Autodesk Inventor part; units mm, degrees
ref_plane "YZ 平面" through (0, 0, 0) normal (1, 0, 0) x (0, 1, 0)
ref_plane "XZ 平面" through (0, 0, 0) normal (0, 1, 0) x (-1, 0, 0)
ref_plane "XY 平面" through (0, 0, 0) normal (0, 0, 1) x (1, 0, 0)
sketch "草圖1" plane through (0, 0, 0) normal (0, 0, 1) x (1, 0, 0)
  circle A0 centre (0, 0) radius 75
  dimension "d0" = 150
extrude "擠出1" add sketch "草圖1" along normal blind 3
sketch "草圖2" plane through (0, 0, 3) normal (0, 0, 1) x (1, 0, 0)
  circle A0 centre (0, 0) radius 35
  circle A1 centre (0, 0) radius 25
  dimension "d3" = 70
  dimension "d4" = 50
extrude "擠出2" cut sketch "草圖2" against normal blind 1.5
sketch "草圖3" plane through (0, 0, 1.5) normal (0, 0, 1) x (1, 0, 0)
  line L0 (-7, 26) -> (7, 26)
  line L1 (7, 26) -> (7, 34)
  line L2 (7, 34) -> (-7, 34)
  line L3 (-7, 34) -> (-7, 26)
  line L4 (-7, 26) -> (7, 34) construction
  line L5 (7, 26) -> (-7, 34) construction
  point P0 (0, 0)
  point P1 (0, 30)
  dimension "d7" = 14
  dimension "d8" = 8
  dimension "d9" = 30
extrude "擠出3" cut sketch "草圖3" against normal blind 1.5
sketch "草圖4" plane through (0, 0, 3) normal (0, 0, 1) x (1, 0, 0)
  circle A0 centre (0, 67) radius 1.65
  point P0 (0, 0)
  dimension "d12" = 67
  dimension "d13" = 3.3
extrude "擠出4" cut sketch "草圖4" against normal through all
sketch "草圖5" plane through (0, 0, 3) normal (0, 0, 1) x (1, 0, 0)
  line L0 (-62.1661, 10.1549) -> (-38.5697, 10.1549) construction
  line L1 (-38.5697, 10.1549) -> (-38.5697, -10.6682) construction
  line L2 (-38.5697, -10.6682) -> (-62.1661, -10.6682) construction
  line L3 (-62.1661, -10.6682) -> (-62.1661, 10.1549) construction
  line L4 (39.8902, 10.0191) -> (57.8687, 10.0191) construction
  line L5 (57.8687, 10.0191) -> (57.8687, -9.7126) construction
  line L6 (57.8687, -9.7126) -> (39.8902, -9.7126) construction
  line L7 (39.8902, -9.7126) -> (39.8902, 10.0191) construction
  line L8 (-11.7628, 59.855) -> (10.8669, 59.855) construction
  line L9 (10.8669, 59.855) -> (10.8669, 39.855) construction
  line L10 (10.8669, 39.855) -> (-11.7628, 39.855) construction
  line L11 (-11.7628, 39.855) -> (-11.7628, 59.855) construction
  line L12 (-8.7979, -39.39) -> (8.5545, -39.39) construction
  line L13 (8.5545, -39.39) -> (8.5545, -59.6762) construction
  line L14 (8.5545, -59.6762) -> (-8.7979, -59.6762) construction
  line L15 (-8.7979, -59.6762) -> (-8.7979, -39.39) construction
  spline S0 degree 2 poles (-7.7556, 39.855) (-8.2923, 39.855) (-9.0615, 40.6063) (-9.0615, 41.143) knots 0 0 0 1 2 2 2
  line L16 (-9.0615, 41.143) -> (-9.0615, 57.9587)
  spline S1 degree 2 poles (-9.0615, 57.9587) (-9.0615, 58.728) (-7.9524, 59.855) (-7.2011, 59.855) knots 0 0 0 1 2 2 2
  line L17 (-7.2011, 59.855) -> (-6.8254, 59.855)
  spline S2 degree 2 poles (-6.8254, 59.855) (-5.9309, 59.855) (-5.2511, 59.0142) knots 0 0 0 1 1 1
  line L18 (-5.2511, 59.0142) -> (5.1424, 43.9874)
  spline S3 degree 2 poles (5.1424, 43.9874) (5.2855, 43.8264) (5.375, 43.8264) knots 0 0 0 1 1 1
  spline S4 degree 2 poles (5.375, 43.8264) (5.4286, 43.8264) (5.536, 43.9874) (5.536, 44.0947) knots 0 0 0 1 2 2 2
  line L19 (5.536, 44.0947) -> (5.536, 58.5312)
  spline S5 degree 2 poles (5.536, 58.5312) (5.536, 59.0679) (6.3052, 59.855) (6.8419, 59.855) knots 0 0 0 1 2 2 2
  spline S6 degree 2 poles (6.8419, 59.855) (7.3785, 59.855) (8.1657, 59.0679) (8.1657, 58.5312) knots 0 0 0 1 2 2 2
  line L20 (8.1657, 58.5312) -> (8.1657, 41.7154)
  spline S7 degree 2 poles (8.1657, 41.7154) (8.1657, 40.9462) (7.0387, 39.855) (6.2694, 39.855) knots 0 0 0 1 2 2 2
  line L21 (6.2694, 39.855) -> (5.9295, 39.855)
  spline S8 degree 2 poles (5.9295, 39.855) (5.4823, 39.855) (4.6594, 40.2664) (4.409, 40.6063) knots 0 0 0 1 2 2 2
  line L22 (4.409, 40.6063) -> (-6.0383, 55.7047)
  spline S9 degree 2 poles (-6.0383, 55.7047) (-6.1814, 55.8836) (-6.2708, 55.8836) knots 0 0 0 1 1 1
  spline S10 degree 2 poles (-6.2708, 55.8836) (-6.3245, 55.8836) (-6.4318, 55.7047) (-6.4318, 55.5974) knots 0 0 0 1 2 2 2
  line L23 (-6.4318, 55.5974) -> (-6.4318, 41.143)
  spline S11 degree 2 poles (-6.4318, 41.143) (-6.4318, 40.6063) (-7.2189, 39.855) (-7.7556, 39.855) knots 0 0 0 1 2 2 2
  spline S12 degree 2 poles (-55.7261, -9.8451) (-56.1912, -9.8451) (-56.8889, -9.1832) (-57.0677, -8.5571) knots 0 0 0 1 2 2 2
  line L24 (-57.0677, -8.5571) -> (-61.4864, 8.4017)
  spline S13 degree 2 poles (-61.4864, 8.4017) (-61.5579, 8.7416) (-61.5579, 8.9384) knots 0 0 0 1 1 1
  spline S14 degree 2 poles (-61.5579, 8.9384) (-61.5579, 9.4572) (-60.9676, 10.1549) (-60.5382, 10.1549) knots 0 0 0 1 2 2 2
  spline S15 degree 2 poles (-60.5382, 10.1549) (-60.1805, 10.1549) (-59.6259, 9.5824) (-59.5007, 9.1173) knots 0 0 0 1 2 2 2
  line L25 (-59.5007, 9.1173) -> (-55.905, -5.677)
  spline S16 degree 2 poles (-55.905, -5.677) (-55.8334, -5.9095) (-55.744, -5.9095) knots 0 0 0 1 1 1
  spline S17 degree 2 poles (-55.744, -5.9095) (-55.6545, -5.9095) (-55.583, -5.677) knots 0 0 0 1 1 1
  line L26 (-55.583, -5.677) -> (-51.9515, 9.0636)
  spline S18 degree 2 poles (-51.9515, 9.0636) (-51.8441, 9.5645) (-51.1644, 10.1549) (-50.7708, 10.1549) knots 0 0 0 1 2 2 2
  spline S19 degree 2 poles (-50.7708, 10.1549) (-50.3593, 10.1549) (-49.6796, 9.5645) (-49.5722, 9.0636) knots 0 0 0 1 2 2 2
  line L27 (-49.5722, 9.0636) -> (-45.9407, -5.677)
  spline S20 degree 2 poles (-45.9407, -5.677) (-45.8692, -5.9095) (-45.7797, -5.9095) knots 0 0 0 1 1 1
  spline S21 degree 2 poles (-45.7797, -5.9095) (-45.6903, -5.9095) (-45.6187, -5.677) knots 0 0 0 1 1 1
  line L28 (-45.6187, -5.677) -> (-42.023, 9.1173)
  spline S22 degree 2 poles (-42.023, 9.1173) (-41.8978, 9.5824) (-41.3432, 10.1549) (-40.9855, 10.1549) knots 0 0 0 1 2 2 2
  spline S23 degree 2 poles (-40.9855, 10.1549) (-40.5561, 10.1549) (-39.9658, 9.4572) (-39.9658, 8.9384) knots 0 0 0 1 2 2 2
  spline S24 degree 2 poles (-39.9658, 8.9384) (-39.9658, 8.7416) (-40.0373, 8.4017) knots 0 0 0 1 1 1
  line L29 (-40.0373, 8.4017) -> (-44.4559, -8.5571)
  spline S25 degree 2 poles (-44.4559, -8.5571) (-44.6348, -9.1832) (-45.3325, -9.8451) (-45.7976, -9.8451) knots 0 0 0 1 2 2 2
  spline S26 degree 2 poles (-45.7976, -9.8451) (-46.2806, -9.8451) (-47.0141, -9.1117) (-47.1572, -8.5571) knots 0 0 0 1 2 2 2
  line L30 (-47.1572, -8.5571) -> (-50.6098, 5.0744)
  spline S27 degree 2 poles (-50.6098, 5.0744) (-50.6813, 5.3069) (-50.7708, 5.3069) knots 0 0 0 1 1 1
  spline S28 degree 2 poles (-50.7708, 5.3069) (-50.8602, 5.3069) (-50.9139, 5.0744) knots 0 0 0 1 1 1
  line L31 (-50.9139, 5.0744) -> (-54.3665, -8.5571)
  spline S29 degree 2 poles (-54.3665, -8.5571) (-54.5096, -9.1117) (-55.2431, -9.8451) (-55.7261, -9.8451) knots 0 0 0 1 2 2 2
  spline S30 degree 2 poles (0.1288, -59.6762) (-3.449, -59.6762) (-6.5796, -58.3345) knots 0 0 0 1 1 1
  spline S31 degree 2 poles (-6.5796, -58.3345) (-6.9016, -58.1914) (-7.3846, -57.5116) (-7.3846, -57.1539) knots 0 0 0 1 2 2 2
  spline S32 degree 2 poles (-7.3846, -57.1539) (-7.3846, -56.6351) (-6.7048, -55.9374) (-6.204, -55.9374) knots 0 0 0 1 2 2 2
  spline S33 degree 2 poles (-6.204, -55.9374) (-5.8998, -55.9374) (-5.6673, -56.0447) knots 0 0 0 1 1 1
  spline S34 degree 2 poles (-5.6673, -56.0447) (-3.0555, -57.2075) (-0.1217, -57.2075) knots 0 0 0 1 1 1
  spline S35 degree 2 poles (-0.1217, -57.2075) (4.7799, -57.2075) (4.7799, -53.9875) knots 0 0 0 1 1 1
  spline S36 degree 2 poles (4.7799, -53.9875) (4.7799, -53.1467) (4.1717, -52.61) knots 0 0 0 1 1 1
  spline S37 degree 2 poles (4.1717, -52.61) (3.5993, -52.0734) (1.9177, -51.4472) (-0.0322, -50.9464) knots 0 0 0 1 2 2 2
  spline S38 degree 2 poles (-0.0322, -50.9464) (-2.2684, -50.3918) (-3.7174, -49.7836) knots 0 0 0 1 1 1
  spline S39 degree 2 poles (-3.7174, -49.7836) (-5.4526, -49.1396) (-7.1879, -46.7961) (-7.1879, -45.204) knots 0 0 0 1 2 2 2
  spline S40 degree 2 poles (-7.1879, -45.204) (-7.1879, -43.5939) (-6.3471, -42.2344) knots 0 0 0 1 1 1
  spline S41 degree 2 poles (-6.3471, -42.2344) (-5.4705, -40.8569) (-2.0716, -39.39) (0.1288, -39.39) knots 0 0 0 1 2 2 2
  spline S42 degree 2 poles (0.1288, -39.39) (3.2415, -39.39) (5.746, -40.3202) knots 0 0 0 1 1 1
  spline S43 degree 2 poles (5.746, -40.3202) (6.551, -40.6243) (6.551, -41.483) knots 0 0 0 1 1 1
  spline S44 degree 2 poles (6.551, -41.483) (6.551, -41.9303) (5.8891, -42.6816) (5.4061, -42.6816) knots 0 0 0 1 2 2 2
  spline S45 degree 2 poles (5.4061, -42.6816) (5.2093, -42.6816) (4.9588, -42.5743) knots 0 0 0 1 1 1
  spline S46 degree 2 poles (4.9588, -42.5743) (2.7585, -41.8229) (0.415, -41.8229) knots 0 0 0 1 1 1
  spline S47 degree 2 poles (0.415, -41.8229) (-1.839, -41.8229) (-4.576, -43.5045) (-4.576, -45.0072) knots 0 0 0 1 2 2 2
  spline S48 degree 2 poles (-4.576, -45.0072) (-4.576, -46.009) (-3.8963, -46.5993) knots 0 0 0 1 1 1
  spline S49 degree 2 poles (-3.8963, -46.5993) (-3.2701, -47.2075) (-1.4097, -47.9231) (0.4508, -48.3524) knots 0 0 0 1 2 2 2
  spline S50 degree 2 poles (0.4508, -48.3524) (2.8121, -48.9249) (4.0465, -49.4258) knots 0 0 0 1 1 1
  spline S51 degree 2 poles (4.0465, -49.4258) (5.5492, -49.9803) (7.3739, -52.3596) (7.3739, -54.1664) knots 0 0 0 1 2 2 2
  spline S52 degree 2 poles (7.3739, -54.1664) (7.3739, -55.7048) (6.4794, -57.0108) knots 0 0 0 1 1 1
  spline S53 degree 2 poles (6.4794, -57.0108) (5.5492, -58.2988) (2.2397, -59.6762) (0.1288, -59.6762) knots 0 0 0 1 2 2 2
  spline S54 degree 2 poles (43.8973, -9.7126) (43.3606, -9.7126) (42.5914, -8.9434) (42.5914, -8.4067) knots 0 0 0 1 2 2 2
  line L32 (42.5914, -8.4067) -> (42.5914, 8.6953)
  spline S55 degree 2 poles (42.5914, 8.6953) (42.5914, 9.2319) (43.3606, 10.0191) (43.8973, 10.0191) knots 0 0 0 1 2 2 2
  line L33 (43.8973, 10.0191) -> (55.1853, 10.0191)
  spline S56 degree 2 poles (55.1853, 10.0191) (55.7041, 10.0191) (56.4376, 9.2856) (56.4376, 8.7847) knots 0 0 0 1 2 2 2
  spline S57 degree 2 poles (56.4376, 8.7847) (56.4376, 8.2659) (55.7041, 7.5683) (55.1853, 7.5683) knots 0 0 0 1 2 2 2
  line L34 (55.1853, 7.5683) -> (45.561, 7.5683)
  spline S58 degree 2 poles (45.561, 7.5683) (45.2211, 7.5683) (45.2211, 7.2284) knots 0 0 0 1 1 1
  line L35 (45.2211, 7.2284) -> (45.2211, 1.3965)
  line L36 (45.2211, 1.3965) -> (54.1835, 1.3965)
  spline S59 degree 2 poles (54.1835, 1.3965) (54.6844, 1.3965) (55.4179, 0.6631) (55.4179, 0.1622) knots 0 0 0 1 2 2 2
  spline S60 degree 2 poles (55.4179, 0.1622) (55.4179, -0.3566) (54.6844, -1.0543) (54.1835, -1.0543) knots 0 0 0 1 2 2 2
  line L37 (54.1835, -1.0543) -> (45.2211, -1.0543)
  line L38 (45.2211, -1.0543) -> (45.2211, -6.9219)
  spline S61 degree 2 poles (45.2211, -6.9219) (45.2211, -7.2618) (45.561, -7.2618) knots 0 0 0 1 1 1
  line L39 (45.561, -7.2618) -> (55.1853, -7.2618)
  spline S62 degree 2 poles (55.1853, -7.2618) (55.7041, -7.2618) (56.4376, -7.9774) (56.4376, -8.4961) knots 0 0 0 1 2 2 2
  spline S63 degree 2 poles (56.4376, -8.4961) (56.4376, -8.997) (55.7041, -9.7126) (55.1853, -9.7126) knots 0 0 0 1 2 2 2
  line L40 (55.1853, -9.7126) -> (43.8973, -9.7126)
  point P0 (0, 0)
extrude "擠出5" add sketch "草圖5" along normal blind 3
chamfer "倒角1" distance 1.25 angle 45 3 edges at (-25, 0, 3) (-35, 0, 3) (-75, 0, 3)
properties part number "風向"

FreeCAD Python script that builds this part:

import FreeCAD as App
import Part
import Sketcher
from FreeCAD import Vector
Q = App.Units.Quantity


def edges_at(feature, points):
    """Names of the edges that pass closest to the given points."""
    edges = feature.Shape.Edges
    near = lambda p: min(range(len(edges)), key=lambda i: edges[i].distToShape(Part.Vertex(*p))[0])
    return sorted({f"Edge{near(p) + 1}" for p in points})

doc = App.newDocument("Part")
body = doc.addObject("PartDesign::Body", "Body")

# Sketch on XY plane
sketch1 = doc.addObject("Sketcher::SketchObject", "Sketch")
body.addObject(sketch1)
sketch1.AttachmentSupport = (doc.XY_Plane, [""])
sketch1.MapMode = "FlatFace"
sketch1.addGeometry(Part.Circle(Vector(0, 0, 0), Vector(0, 0, 1), 75), False)
sketch1.addConstraint([
    Sketcher.Constraint("Coincident", 0, 3, -1, 1),
    Sketcher.Constraint("Diameter", 0, Q("150 mm")),
])
pad1 = doc.addObject("PartDesign::Pad", "Pad")
body.addObject(pad1)
pad1.Profile = sketch1
pad1.Length = 3

# Sketch on XY plane
sketch2 = doc.addObject("Sketcher::SketchObject", "Sketch001")
body.addObject(sketch2)
sketch2.AttachmentSupport = (doc.XY_Plane, [""])
sketch2.MapMode = "FlatFace"
sketch2.AttachmentOffset = App.Placement(Vector(0, 0, 3), App.Rotation())
sketch2.addGeometry([
    Part.Circle(Vector(0, 0, 0), Vector(0, 0, 1), 35),
    Part.Circle(Vector(0, 0, 0), Vector(0, 0, 1), 25),
], False)
sketch2.addConstraint([
    Sketcher.Constraint("Coincident", 0, 3, -1, 1),
    Sketcher.Constraint("Coincident", 1, 3, -1, 1),
    Sketcher.Constraint("Diameter", 0, Q("70 mm")),
    Sketcher.Constraint("Diameter", 1, Q("50 mm")),
])
pocket1 = doc.addObject("PartDesign::Pocket", "Pocket")
body.addObject(pocket1)
pocket1.Profile = sketch2
pocket1.Length = 1.5

# Sketch on XY plane
sketch3 = doc.addObject("Sketcher::SketchObject", "Sketch002")
body.addObject(sketch3)
sketch3.AttachmentSupport = (doc.XY_Plane, [""])
sketch3.MapMode = "FlatFace"
sketch3.AttachmentOffset = App.Placement(Vector(0, 0, 1.5), App.Rotation())
sketch3.addGeometry([
    Part.LineSegment(Vector(-7, 34, 0), Vector(-7, 26, 0)),
    Part.LineSegment(Vector(-7, 26, 0), Vector(7, 26, 0)),
    Part.LineSegment(Vector(7, 26, 0), Vector(7, 34, 0)),
    Part.LineSegment(Vector(7, 34, 0), Vector(-7, 34, 0)),
], False)
sketch3.addConstraint([
    Sketcher.Constraint("Coincident", 0, 2, 1, 1),
    Sketcher.Constraint("Coincident", 1, 2, 2, 1),
    Sketcher.Constraint("Coincident", 2, 2, 3, 1),
    Sketcher.Constraint("Coincident", 3, 2, 0, 1),
    Sketcher.Constraint("Vertical", 0),
    Sketcher.Constraint("Horizontal", 1),
    Sketcher.Constraint("Vertical", 2),
    Sketcher.Constraint("Horizontal", 3),
    Sketcher.Constraint("DistanceX", 1, 1, 1, 2, Q("14 mm")),
    Sketcher.Constraint("DistanceY", 0, 2, 0, 1, Q("8 mm")),
    Sketcher.Constraint("DistanceX", 0, 2, -1, 1, Q("7 mm")),
    Sketcher.Constraint("DistanceY", -1, 1, 0, 2, Q("26 mm")),
])
pocket2 = doc.addObject("PartDesign::Pocket", "Pocket001")
body.addObject(pocket2)
pocket2.Profile = sketch3
pocket2.Length = 1.5

# Sketch on XY plane
sketch4 = doc.addObject("Sketcher::SketchObject", "Sketch003")
body.addObject(sketch4)
sketch4.AttachmentSupport = (doc.XY_Plane, [""])
sketch4.MapMode = "FlatFace"
sketch4.AttachmentOffset = App.Placement(Vector(0, 0, 3), App.Rotation())
sketch4.addGeometry(Part.Circle(Vector(0, 67, 0), Vector(0, 0, 1), 1.6), False)
sketch4.addConstraint([
    Sketcher.Constraint("PointOnObject", 0, 3, -2),
    Sketcher.Constraint("Diameter", 0, Q("3.3 mm")),
    Sketcher.Constraint("DistanceY", -1, 1, 0, 3, Q("67 mm")),
])
pocket3 = doc.addObject("PartDesign::Pocket", "Pocket002")
body.addObject(pocket3)
pocket3.Profile = sketch4
pocket3.Type = "ThroughAll"

# Sketch on XY plane
sketch5 = doc.addObject("Sketcher::SketchObject", "Sketch004")
body.addObject(sketch5)
sketch5.AttachmentSupport = (doc.XY_Plane, [""])
sketch5.MapMode = "FlatFace"
sketch5.AttachmentOffset = App.Placement(Vector(0, 0, 3), App.Rotation())
sketch5.addGeometry([
    Part.BSplineCurve([Vector(-7.7556, 39.855, 0), Vector(-8.2923, 39.855, 0), Vector(-9.0615, 40.6063, 0), Vector(-9.0615, 41.143, 0)], [3, 1, 3], [0, 1, 2], False, 2, [1, 1, 1, 1], False),  # 0
    Part.BSplineCurve([Vector(-6.4318, 41.143, 0), Vector(-6.4318, 40.6063, 0), Vector(-7.2189, 39.855, 0), Vector(-7.7556, 39.855, 0)], [3, 1, 3], [0, 1, 2], False, 2, [1, 1, 1, 1], False),  # 1
    Part.LineSegment(Vector(-6.4318, 41.143, 0), Vector(-6.4318, 55.5974, 0)),  # 2
    Part.BSplineCurve([Vector(-6.2708, 55.8836, 0), Vector(-6.3245, 55.8836, 0), Vector(-6.4318, 55.7047, 0), Vector(-6.4318, 55.5974, 0)], [3, 1, 3], [0, 1, 2], False, 2, [1, 1, 1, 1], False),  # 3
    Part.BSplineCurve([Vector(-6.0383, 55.7047, 0), Vector(-6.1814, 55.8836, 0), Vector(-6.2708, 55.8836, 0)], [3, 3], [0, 1], False, 2, [1, 1, 1], False),  # 4
    Part.LineSegment(Vector(-6.0383, 55.7047, 0), Vector(4.409, 40.6063, 0)),  # 5
    Part.BSplineCurve([Vector(5.9295, 39.855, 0), Vector(5.4823, 39.855, 0), Vector(4.6594, 40.2664, 0), Vector(4.409, 40.6063, 0)], [3, 1, 3], [0, 1, 2], False, 2, [1, 1, 1, 1], False),  # 6
    Part.LineSegment(Vector(5.9295, 39.855, 0), Vector(6.2694, 39.855, 0)),  # 7
    Part.BSplineCurve([Vector(8.1657, 41.7154, 0), Vector(8.1657, 40.9462, 0), Vector(7.0387, 39.855, 0), Vector(6.2694, 39.855, 0)], [3, 1, 3], [0, 1, 2], False, 2, [1, 1, 1, 1], False),  # 8
    Part.LineSegment(Vector(8.1657, 41.7154, 0), Vector(8.1657, 58.5312, 0)),  # 9
    Part.BSplineCurve([Vector(6.8419, 59.855, 0), Vector(7.3785, 59.855, 0), Vector(8.1657, 59.0679, 0), Vector(8.1657, 58.5312, 0)], [3, 1, 3], [0, 1, 2], False, 2, [1, 1, 1, 1], False),  # 10
    Part.BSplineCurve([Vector(5.536, 58.5312, 0), Vector(5.536, 59.0679, 0), Vector(6.3052, 59.855, 0), Vector(6.8419, 59.855, 0)], [3, 1, 3], [0, 1, 2], False, 2, [1, 1, 1, 1], False),  # 11
    Part.LineSegment(Vector(5.536, 58.5312, 0), Vector(5.536, 44.0947, 0)),  # 12
    Part.BSplineCurve([Vector(5.375, 43.8264, 0), Vector(5.4286, 43.8264, 0), Vector(5.536, 43.9874, 0), Vector(5.536, 44.0947, 0)], [3, 1, 3], [0, 1, 2], False, 2, [1, 1, 1, 1], False),  # 13
    Part.BSplineCurve([Vector(5.1424, 43.9874, 0), Vector(5.2855, 43.8264, 0), Vector(5.375, 43.8264, 0)], [3, 3], [0, 1], False, 2, [1, 1, 1], False),  # 14
    Part.LineSegment(Vector(5.1424, 43.9874, 0), Vector(-5.2511, 59.0142, 0)),  # 15
    Part.BSplineCurve([Vector(-6.8254, 59.855, 0), Vector(-5.9309, 59.855, 0), Vector(-5.2511, 59.0142, 0)], [3, 3], [0, 1], False, 2, [1, 1, 1], False),  # 16
    Part.LineSegment(Vector(-6.8254, 59.855, 0), Vector(-7.2011, 59.855, 0)),  # 17
    Part.BSplineCurve([Vector(-9.0615, 57.9587, 0), Vector(-9.0615, 58.728, 0), Vector(-7.9524, 59.855, 0), Vector(-7.2011, 59.855, 0)], [3, 1, 3], [0, 1, 2], False, 2, [1, 1, 1, 1], False),  # 18
    Part.LineSegment(Vector(-9.0615, 57.9587, 0), Vector(-9.0615, 41.143, 0)),  # 19
    Part.BSplineCurve([Vector(-55.7261, -9.8451, 0), Vector(-56.1912, -9.8451, 0), Vector(-56.8889, -9.1832, 0), Vector(-57.0677, -8.5571, 0)], [3, 1, 3], [0, 1, 2], False, 2, [1, 1, 1, 1], False),  # 20
    Part.BSplineCurve([Vector(-54.3665, -8.5571, 0), Vector(-54.5096, -9.1117, 0), Vector(-55.2431, -9.8451, 0), Vector(-55.7261, -9.8451, 0)], [3, 1, 3], [0, 1, 2], False, 2, [1, 1, 1, 1], False),  # 21
    Part.LineSegment(Vector(-54.3665, -8.5571, 0), Vector(-50.9139, 5.0744, 0)),  # 22
    Part.BSplineCurve([Vector(-50.7708, 5.3069, 0), Vector(-50.8602, 5.3069, 0), Vector(-50.9139, 5.0744, 0)], [3, 3], [0, 1], False, 2, [1, 1, 1], False),  # 23
    Part.BSplineCurve([Vector(-50.6098, 5.0744, 0), Vector(-50.6813, 5.3069, 0), Vector(-50.7708, 5.3069, 0)], [3, 3], [0, 1], False, 2, [1, 1, 1], False),  # 24
    Part.LineSegment(Vector(-50.6098, 5.0744, 0), Vector(-47.1572, -8.5571, 0)),  # 25
    Part.BSplineCurve([Vector(-45.7976, -9.8451, 0), Vector(-46.2806, -9.8451, 0), Vector(-47.0141, -9.1117, 0), Vector(-47.1572, -8.5571, 0)], [3, 1, 3], [0, 1, 2], False, 2, [1, 1, 1, 1], False),  # 26
    Part.BSplineCurve([Vector(-44.4559, -8.5571, 0), Vector(-44.6348, -9.1832, 0), Vector(-45.3325, -9.8451, 0), Vector(-45.7976, -9.8451, 0)], [3, 1, 3], [0, 1, 2], False, 2, [1, 1, 1, 1], False),  # 27
    Part.LineSegment(Vector(-44.4559, -8.5571, 0), Vector(-40.0373, 8.4017, 0)),  # 28
    Part.BSplineCurve([Vector(-39.9658, 8.9384, 0), Vector(-39.9658, 8.7416, 0), Vector(-40.0373, 8.4017, 0)], [3, 3], [0, 1], False, 2, [1, 1, 1], False),  # 29
    Part.BSplineCurve([Vector(-40.9855, 10.1549, 0), Vector(-40.5561, 10.1549, 0), Vector(-39.9658, 9.4572, 0), Vector(-39.9658, 8.9384, 0)], [3, 1, 3], [0, 1, 2], False, 2, [1, 1, 1, 1], False),  # 30
    Part.BSplineCurve([Vector(-42.023, 9.1173, 0), Vector(-41.8978, 9.5824, 0), Vector(-41.3432, 10.1549, 0), Vector(-40.9855, 10.1549, 0)], [3, 1, 3], [0, 1, 2], False, 2, [1, 1, 1, 1], False),  # 31
    Part.LineSegment(Vector(-42.023, 9.1173, 0), Vector(-45.6187, -5.677, 0)),  # 32
    Part.BSplineCurve([Vector(-45.7797, -5.9095, 0), Vector(-45.6903, -5.9095, 0), Vector(-45.6187, -5.677, 0)], [3, 3], [0, 1], False, 2, [1, 1, 1], False),  # 33
    Part.BSplineCurve([Vector(-45.9407, -5.677, 0), Vector(-45.8692, -5.9095, 0), Vector(-45.7797, -5.9095, 0)], [3, 3], [0, 1], False, 2, [1, 1, 1], False),  # 34
    Part.LineSegment(Vector(-45.9407, -5.677, 0), Vector(-49.5722, 9.0636, 0)),  # 35
    Part.BSplineCurve([Vector(-50.7708, 10.1549, 0), Vector(-50.3593, 10.1549, 0), Vector(-49.6796, 9.5645, 0), Vector(-49.5722, 9.0636, 0)], [3, 1, 3], [0, 1, 2], False, 2, [1, 1, 1, 1], False),  # 36
    Part.BSplineCurve([Vector(-51.9515, 9.0636, 0), Vector(-51.8441, 9.5645, 0), Vector(-51.1644, 10.1549, 0), Vector(-50.7708, 10.1549, 0)], [3, 1, 3], [0, 1, 2], False, 2, [1, 1, 1, 1], False),  # 37
    Part.LineSegment(Vector(-51.9515, 9.0636, 0), Vector(-55.583, -5.677, 0)),  # 38
    Part.BSplineCurve([Vector(-55.744, -5.9095, 0), Vector(-55.6545, -5.9095, 0), Vector(-55.583, -5.677, 0)], [3, 3], [0, 1], False, 2, [1, 1, 1], False),  # 39
    Part.BSplineCurve([Vector(-55.905, -5.677, 0), Vector(-55.8334, -5.9095, 0), Vector(-55.744, -5.9095, 0)], [3, 3], [0, 1], False, 2, [1, 1, 1], False),  # 40
    Part.LineSegment(Vector(-55.905, -5.677, 0), Vector(-59.5007, 9.1173, 0)),  # 41
    Part.BSplineCurve([Vector(-60.5382, 10.1549, 0), Vector(-60.1805, 10.1549, 0), Vector(-59.6259, 9.5824, 0), Vector(-59.5007, 9.1173, 0)], [3, 1, 3], [0, 1, 2], False, 2, [1, 1, 1, 1], False),  # 42
    Part.BSplineCurve([Vector(-61.5579, 8.9384, 0), Vector(-61.5579, 9.4572, 0), Vector(-60.9676, 10.1549, 0), Vector(-60.5382, 10.1549, 0)], [3, 1, 3], [0, 1, 2], False, 2, [1, 1, 1, 1], False),  # 43
    Part.BSplineCurve([Vector(-61.4864, 8.4017, 0), Vector(-61.5579, 8.7416, 0), Vector(-61.5579, 8.9384, 0)], [3, 3], [0, 1], False, 2, [1, 1, 1], False),  # 44
    Part.LineSegment(Vector(-61.4864, 8.4017, 0), Vector(-57.0677, -8.5571, 0)),  # 45
    Part.BSplineCurve([Vector(0.1288, -59.6762, 0), Vector(-3.449, -59.6762, 0), Vector(-6.5796, -58.3345, 0)], [3, 3], [0, 1], False, 2, [1, 1, 1], False),  # 46
    Part.BSplineCurve([Vector(6.4794, -57.0108, 0), Vector(5.5492, -58.2988, 0), Vector(2.2397, -59.6762, 0), Vector(0.1288, -59.6762, 0)], [3, 1, 3], [0, 1, 2], False, 2, [1, 1, 1, 1], False),  # 47
    Part.BSplineCurve([Vector(7.3739, -54.1664, 0), Vector(7.3739, -55.7048, 0), Vector(6.4794, -57.0108, 0)], [3, 3], [0, 1], False, 2, [1, 1, 1], False),  # 48
    Part.BSplineCurve([Vector(4.0465, -49.4258, 0), Vector(5.5492, -49.9803, 0), Vector(7.3739, -52.3596, 0), Vector(7.3739, -54.1664, 0)], [3, 1, 3], [0, 1, 2], False, 2, [1, 1, 1, 1], False),  # 49
    Part.BSplineCurve([Vector(0.4508, -48.3524, 0), Vector(2.8121, -48.9249, 0), Vector(4.0465, -49.4258, 0)], [3, 3], [0, 1], False, 2, [1, 1, 1], False),  # 50
    Part.BSplineCurve([Vector(-3.8963, -46.5993, 0), Vector(-3.2701, -47.2075, 0), Vector(-1.4097, -47.9231, 0), Vector(0.4508, -48.3524, 0)], [3, 1, 3], [0, 1, 2], False, 2, [1, 1, 1, 1], False),  # 51
    Part.BSplineCurve([Vector(-4.576, -45.0072, 0), Vector(-4.576, -46.009, 0), Vector(-3.8963, -46.5993, 0)], [3, 3], [0, 1], False, 2, [1, 1, 1], False),  # 52
    Part.BSplineCurve([Vector(0.415, -41.8229, 0), Vector(-1.839, -41.8229, 0), Vector(-4.576, -43.5045, 0), Vector(-4.576, -45.0072, 0)], [3, 1, 3], [0, 1, 2], False, 2, [1, 1, 1, 1], False),  # 53
    Part.BSplineCurve([Vector(4.9588, -42.5743, 0), Vector(2.7585, -41.8229, 0), Vector(0.415, -41.8229, 0)], [3, 3], [0, 1], False, 2, [1, 1, 1], False),  # 54
    Part.BSplineCurve([Vector(5.4061, -42.6816, 0), Vector(5.2093, -42.6816, 0), Vector(4.9588, -42.5743, 0)], [3, 3], [0, 1], False, 2, [1, 1, 1], False),  # 55
    Part.BSplineCurve([Vector(6.551, -41.483, 0), Vector(6.551, -41.9303, 0), Vector(5.8891, -42.6816, 0), Vector(5.4061, -42.6816, 0)], [3, 1, 3], [0, 1, 2], False, 2, [1, 1, 1, 1], False),  # 56
    Part.BSplineCurve([Vector(5.746, -40.3202, 0), Vector(6.551, -40.6243, 0), Vector(6.551, -41.483, 0)], [3, 3], [0, 1], False, 2, [1, 1, 1], False),  # 57
    Part.BSplineCurve([Vector(0.1288, -39.39, 0), Vector(3.2415, -39.39, 0), Vector(5.746, -40.3202, 0)], [3, 3], [0, 1], False, 2, [1, 1, 1], False),  # 58
    Part.BSplineCurve([Vector(-6.3471, -42.2344, 0), Vector(-5.4705, -40.8569, 0), Vector(-2.0716, -39.39, 0), Vector(0.1288, -39.39, 0)], [3, 1, 3], [0, 1, 2], False, 2, [1, 1, 1, 1], False),  # 59
    Part.BSplineCurve([Vector(-7.1879, -45.204, 0), Vector(-7.1879, -43.5939, 0), Vector(-6.3471, -42.2344, 0)], [3, 3], [0, 1], False, 2, [1, 1, 1], False),  # 60
    Part.BSplineCurve([Vector(-3.7174, -49.7836, 0), Vector(-5.4526, -49.1396, 0), Vector(-7.1879, -46.7961, 0), Vector(-7.1879, -45.204, 0)], [3, 1, 3], [0, 1, 2], False, 2, [1, 1, 1, 1], False),  # 61
    Part.BSplineCurve([Vector(-0.0322, -50.9464, 0), Vector(-2.2684, -50.3918, 0), Vector(-3.7174, -49.7836, 0)], [3, 3], [0, 1], False, 2, [1, 1, 1], False),  # 62
    Part.BSplineCurve([Vector(4.1717, -52.61, 0), Vector(3.5993, -52.0734, 0), Vector(1.9177, -51.4472, 0), Vector(-0.0322, -50.9464, 0)], [3, 1, 3], [0, 1, 2], False, 2, [1, 1, 1, 1], False),  # 63
    Part.BSplineCurve([Vector(4.7799, -53.9875, 0), Vector(4.7799, -53.1467, 0), Vector(4.1717, -52.61, 0)], [3, 3], [0, 1], False, 2, [1, 1, 1], False),  # 64
    Part.BSplineCurve([Vector(-0.1217, -57.2075, 0), Vector(4.7799, -57.2075, 0), Vector(4.7799, -53.9875, 0)], [3, 3], [0, 1], False, 2, [1, 1, 1], False),  # 65
    Part.BSplineCurve([Vector(-5.6673, -56.0447, 0), Vector(-3.0555, -57.2075, 0), Vector(-0.1217, -57.2075, 0)], [3, 3], [0, 1], False, 2, [1, 1, 1], False),  # 66
    Part.BSplineCurve([Vector(-6.204, -55.9374, 0), Vector(-5.8998, -55.9374, 0), Vector(-5.6673, -56.0447, 0)], [3, 3], [0, 1], False, 2, [1, 1, 1], False),  # 67
    Part.BSplineCurve([Vector(-7.3846, -57.1539, 0), Vector(-7.3846, -56.6351, 0), Vector(-6.7048, -55.9374, 0), Vector(-6.204, -55.9374, 0)], [3, 1, 3], [0, 1, 2], False, 2, [1, 1, 1, 1], False),  # 68
    Part.BSplineCurve([Vector(-6.5796, -58.3345, 0), Vector(-6.9016, -58.1914, 0), Vector(-7.3846, -57.5116, 0), Vector(-7.3846, -57.1539, 0)], [3, 1, 3], [0, 1, 2], False, 2, [1, 1, 1, 1], False),  # 69
    Part.BSplineCurve([Vector(43.8973, -9.7126, 0), Vector(43.3606, -9.7126, 0), Vector(42.5914, -8.9434, 0), Vector(42.5914, -8.4067, 0)], [3, 1, 3], [0, 1, 2], False, 2, [1, 1, 1, 1], False),  # 70
    Part.LineSegment(Vector(43.8973, -9.7126, 0), Vector(55.1853, -9.7126, 0)),  # 71
    Part.BSplineCurve([Vector(56.4376, -8.4961, 0), Vector(56.4376, -8.997, 0), Vector(55.7041, -9.7126, 0), Vector(55.1853, -9.7126, 0)], [3, 1, 3], [0, 1, 2], False, 2, [1, 1, 1, 1], False),  # 72
    Part.BSplineCurve([Vector(55.1853, -7.2618, 0), Vector(55.7041, -7.2618, 0), Vector(56.4376, -7.9774, 0), Vector(56.4376, -8.4961, 0)], [3, 1, 3], [0, 1, 2], False, 2, [1, 1, 1, 1], False),  # 73
    Part.LineSegment(Vector(55.1853, -7.2618, 0), Vector(45.561, -7.2618, 0)),  # 74
    Part.BSplineCurve([Vector(45.2211, -6.9219, 0), Vector(45.2211, -7.2618, 0), Vector(45.561, -7.2618, 0)], [3, 3], [0, 1], False, 2, [1, 1, 1], False),  # 75
    Part.LineSegment(Vector(45.2211, -6.9219, 0), Vector(45.2211, -1.0543, 0)),  # 76
    Part.LineSegment(Vector(45.2211, -1.0543, 0), Vector(54.1835, -1.0543, 0)),  # 77
    Part.BSplineCurve([Vector(55.4179, 0.1622, 0), Vector(55.4179, -0.3566, 0), Vector(54.6844, -1.0543, 0), Vector(54.1835, -1.0543, 0)], [3, 1, 3], [0, 1, 2], False, 2, [1, 1, 1, 1], False),  # 78
    Part.BSplineCurve([Vector(54.1835, 1.3965, 0), Vector(54.6844, 1.3965, 0), Vector(55.4179, 0.6631, 0), Vector(55.4179, 0.1622, 0)], [3, 1, 3], [0, 1, 2], False, 2, [1, 1, 1, 1], False),  # 79
    Part.LineSegment(Vector(54.1835, 1.3965, 0), Vector(45.2211, 1.3965, 0)),  # 80
    Part.LineSegment(Vector(45.2211, 1.3965, 0), Vector(45.2211, 7.2284, 0)),  # 81
    Part.BSplineCurve([Vector(45.561, 7.5683, 0), Vector(45.2211, 7.5683, 0), Vector(45.2211, 7.2284, 0)], [3, 3], [0, 1], False, 2, [1, 1, 1], False),  # 82
    Part.LineSegment(Vector(45.561, 7.5683, 0), Vector(55.1853, 7.5683, 0)),  # 83
    Part.BSplineCurve([Vector(56.4376, 8.7847, 0), Vector(56.4376, 8.2659, 0), Vector(55.7041, 7.5683, 0), Vector(55.1853, 7.5683, 0)], [3, 1, 3], [0, 1, 2], False, 2, [1, 1, 1, 1], False),  # 84
    Part.BSplineCurve([Vector(55.1853, 10.0191, 0), Vector(55.7041, 10.0191, 0), Vector(56.4376, 9.2856, 0), Vector(56.4376, 8.7847, 0)], [3, 1, 3], [0, 1, 2], False, 2, [1, 1, 1, 1], False),  # 85
    Part.LineSegment(Vector(55.1853, 10.0191, 0), Vector(43.8973, 10.0191, 0)),  # 86
    Part.BSplineCurve([Vector(42.5914, 8.6953, 0), Vector(42.5914, 9.2319, 0), Vector(43.3606, 10.0191, 0), Vector(43.8973, 10.0191, 0)], [3, 1, 3], [0, 1, 2], False, 2, [1, 1, 1, 1], False),  # 87
    Part.LineSegment(Vector(42.5914, 8.6953, 0), Vector(42.5914, -8.4067, 0)),  # 88
], False)
sketch5.addConstraint([
    Sketcher.Constraint("Block", 0),
    Sketcher.Constraint("Block", 1),
    Sketcher.Constraint("Block", 3),
    Sketcher.Constraint("Block", 4),
    Sketcher.Constraint("Block", 6),
    Sketcher.Constraint("Block", 8),
    Sketcher.Constraint("Block", 10),
    Sketcher.Constraint("Block", 11),
    Sketcher.Constraint("Block", 13),
    Sketcher.Constraint("Block", 14),
    Sketcher.Constraint("Block", 16),
    Sketcher.Constraint("Block", 18),
    Sketcher.Constraint("Block", 20),
    Sketcher.Constraint("Block", 21),
    Sketcher.Constraint("Block", 23),
    Sketcher.Constraint("Block", 24),
    Sketcher.Constraint("Block", 26),
    Sketcher.Constraint("Block", 27),
    Sketcher.Constraint("Block", 29),
    Sketcher.Constraint("Block", 30),
    Sketcher.Constraint("Block", 31),
    Sketcher.Constraint("Block", 33),
    Sketcher.Constraint("Block", 34),
    Sketcher.Constraint("Block", 36),
    Sketcher.Constraint("Block", 37),
    Sketcher.Constraint("Block", 39),
    Sketcher.Constraint("Block", 40),
    Sketcher.Constraint("Block", 42),
    Sketcher.Constraint("Block", 43),
    Sketcher.Constraint("Block", 44),
    Sketcher.Constraint("Block", 46),
    Sketcher.Constraint("Block", 47),
    Sketcher.Constraint("Block", 48),
    Sketcher.Constraint("Block", 49),
    Sketcher.Constraint("Block", 50),
    Sketcher.Constraint("Block", 51),
    Sketcher.Constraint("Block", 52),
    Sketcher.Constraint("Block", 53),
    Sketcher.Constraint("Block", 54),
    Sketcher.Constraint("Block", 55),
    Sketcher.Constraint("Block", 56),
    Sketcher.Constraint("Block", 57),
    Sketcher.Constraint("Block", 58),
    Sketcher.Constraint("Block", 59),
    Sketcher.Constraint("Block", 60),
    Sketcher.Constraint("Block", 61),
    Sketcher.Constraint("Block", 62),
    Sketcher.Constraint("Block", 63),
    Sketcher.Constraint("Block", 64),
    Sketcher.Constraint("Block", 65),
    Sketcher.Constraint("Block", 66),
    Sketcher.Constraint("Block", 67),
    Sketcher.Constraint("Block", 68),
    Sketcher.Constraint("Block", 69),
    Sketcher.Constraint("Block", 70),
    Sketcher.Constraint("Block", 72),
    Sketcher.Constraint("Block", 73),
    Sketcher.Constraint("Block", 75),
    Sketcher.Constraint("Block", 78),
    Sketcher.Constraint("Block", 79),
    Sketcher.Constraint("Block", 82),
    Sketcher.Constraint("Block", 84),
    Sketcher.Constraint("Block", 85),
    Sketcher.Constraint("Block", 87),
    Sketcher.Constraint("Coincident", 1, 1, 2, 1),
    Sketcher.Constraint("Coincident", 2, 2, 3, 2),
    Sketcher.Constraint("Coincident", 4, 1, 5, 1),
    Sketcher.Constraint("Coincident", 5, 2, 6, 2),
    Sketcher.Constraint("Coincident", 6, 1, 7, 1),
    Sketcher.Constraint("Coincident", 7, 2, 8, 2),
    Sketcher.Constraint("Coincident", 8, 1, 9, 1),
    Sketcher.Constraint("Coincident", 9, 2, 10, 2),
    Sketcher.Constraint("Coincident", 11, 1, 12, 1),
    Sketcher.Constraint("Coincident", 12, 2, 13, 2),
    Sketcher.Constraint("Coincident", 14, 1, 15, 1),
    Sketcher.Constraint("Coincident", 15, 2, 16, 2),
    Sketcher.Constraint("Coincident", 16, 1, 17, 1),
    Sketcher.Constraint("Coincident", 17, 2, 18, 2),
    Sketcher.Constraint("Coincident", 18, 1, 19, 1),
    Sketcher.Constraint("Coincident", 19, 2, 0, 2),
    Sketcher.Constraint("Coincident", 21, 1, 22, 1),
    Sketcher.Constraint("Coincident", 22, 2, 23, 2),
    Sketcher.Constraint("Coincident", 24, 1, 25, 1),
    Sketcher.Constraint("Coincident", 25, 2, 26, 2),
    Sketcher.Constraint("Coincident", 27, 1, 28, 1),
    Sketcher.Constraint("Coincident", 28, 2, 29, 2),
    Sketcher.Constraint("Coincident", 31, 1, 32, 1),
    Sketcher.Constraint("Coincident", 32, 2, 33, 2),
    Sketcher.Constraint("Coincident", 34, 1, 35, 1),
    Sketcher.Constraint("Coincident", 35, 2, 36, 2),
    Sketcher.Constraint("Coincident", 37, 1, 38, 1),
    Sketcher.Constraint("Coincident", 38, 2, 39, 2),
    Sketcher.Constraint("Coincident", 40, 1, 41, 1),
    Sketcher.Constraint("Coincident", 41, 2, 42, 2),
    Sketcher.Constraint("Coincident", 44, 1, 45, 1),
    Sketcher.Constraint("Coincident", 45, 2, 20, 2),
    Sketcher.Constraint("Coincident", 70, 1, 71, 1),
    Sketcher.Constraint("Coincident", 71, 2, 72, 2),
    Sketcher.Constraint("Coincident", 73, 1, 74, 1),
    Sketcher.Constraint("Coincident", 74, 2, 75, 2),
    Sketcher.Constraint("Coincident", 75, 1, 76, 1),
    Sketcher.Constraint("Coincident", 76, 2, 77, 1),
    Sketcher.Constraint("Coincident", 77, 2, 78, 2),
    Sketcher.Constraint("Coincident", 79, 1, 80, 1),
    Sketcher.Constraint("Coincident", 80, 2, 81, 1),
    Sketcher.Constraint("Coincident", 81, 2, 82, 2),
    Sketcher.Constraint("Coincident", 82, 1, 83, 1),
    Sketcher.Constraint("Coincident", 83, 2, 84, 2),
    Sketcher.Constraint("Coincident", 85, 1, 86, 1),
    Sketcher.Constraint("Coincident", 86, 2, 87, 2),
    Sketcher.Constraint("Coincident", 87, 1, 88, 1),
    Sketcher.Constraint("Coincident", 88, 2, 70, 2),
    Sketcher.Constraint("Vertical", 76),
    Sketcher.Constraint("Horizontal", 77),
    Sketcher.Constraint("Horizontal", 80),
    Sketcher.Constraint("Vertical", 81),
])
pad2 = doc.addObject("PartDesign::Pad", "Pad001")
body.addObject(pad2)
pad2.Profile = sketch5
pad2.Length = 3
doc.recompute()

chamfer = doc.addObject("PartDesign::Chamfer", "Chamfer")
body.addObject(chamfer)
chamfer.Base = (pad2, edges_at(pad2, [(-25, 0, 3), (-35, 0, 3), (-75, 0, 3)]))
chamfer.Size = 1.25

doc.recompute()
